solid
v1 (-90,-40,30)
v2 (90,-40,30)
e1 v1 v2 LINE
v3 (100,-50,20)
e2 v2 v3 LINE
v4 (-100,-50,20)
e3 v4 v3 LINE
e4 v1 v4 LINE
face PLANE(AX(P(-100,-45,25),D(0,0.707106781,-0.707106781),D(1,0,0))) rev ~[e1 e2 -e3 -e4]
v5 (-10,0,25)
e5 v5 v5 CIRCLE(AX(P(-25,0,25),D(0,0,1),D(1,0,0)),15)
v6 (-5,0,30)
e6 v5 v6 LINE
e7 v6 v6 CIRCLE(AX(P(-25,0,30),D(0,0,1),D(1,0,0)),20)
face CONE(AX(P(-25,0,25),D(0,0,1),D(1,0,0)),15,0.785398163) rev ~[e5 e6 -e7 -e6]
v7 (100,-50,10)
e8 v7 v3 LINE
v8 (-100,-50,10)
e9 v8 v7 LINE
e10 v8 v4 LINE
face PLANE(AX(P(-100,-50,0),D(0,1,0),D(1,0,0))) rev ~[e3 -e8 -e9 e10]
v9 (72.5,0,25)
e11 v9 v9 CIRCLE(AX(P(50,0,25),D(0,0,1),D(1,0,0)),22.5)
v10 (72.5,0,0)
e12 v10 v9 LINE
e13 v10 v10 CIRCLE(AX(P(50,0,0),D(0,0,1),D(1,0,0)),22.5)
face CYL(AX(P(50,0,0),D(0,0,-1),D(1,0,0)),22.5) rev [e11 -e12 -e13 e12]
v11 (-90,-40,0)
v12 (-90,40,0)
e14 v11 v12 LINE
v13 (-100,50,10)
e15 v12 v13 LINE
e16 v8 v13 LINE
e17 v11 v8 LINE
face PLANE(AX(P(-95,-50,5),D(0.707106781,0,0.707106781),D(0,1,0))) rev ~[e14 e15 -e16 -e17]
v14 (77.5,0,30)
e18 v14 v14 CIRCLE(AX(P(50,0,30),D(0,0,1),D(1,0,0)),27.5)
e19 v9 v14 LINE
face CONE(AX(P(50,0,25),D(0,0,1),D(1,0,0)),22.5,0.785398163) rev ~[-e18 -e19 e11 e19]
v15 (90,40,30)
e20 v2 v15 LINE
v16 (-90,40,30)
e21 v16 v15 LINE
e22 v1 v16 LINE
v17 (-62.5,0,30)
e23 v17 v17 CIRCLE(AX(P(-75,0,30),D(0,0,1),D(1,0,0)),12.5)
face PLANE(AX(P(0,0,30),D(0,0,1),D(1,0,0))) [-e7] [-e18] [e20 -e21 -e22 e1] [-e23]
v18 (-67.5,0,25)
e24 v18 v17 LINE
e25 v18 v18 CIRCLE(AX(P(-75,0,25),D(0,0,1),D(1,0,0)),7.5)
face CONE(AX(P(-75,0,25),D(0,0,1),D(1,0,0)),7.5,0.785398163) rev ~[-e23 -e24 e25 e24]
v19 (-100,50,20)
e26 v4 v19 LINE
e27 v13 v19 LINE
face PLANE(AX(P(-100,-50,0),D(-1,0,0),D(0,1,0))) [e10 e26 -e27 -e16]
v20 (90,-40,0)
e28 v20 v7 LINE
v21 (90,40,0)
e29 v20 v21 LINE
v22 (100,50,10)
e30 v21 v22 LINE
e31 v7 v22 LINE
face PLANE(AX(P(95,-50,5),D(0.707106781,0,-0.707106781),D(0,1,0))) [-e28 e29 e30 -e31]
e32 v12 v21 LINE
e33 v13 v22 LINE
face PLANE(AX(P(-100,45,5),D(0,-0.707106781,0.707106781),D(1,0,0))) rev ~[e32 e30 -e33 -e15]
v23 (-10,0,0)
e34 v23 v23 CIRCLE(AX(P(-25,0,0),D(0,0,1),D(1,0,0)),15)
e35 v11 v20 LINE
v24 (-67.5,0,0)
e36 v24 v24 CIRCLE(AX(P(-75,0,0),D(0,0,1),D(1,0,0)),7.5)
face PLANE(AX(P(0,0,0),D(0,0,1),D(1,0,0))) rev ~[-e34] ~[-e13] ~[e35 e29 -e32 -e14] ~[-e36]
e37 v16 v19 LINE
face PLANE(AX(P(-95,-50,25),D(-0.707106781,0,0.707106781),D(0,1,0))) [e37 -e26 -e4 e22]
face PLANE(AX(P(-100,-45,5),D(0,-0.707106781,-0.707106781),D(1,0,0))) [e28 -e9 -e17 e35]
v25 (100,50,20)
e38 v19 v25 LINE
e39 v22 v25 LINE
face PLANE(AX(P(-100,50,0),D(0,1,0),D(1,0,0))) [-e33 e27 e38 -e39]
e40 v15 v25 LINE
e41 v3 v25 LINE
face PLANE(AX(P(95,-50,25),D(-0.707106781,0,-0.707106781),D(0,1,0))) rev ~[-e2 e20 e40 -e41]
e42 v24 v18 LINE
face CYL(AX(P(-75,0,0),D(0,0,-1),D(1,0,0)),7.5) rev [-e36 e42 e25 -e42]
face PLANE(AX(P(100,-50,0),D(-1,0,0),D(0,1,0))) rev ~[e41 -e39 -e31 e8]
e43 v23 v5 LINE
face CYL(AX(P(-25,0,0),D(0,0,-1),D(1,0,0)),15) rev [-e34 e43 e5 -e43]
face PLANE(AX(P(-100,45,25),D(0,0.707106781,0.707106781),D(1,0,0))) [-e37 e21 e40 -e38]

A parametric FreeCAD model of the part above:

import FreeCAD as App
import Part
import Sketcher


def edges_at(feature, points):
    """Names of the edges that pass closest to the given points."""
    edges = feature.Shape.Edges
    near = lambda p: min(range(len(edges)), key=lambda i: edges[i].distToShape(Part.Vertex(*p))[0])
    return sorted({f"Edge{near(p) + 1}" for p in points})


def add_polygon(sketch, points):
    """Adds a closed chain of lines whose ends are joined by coincident constraints."""
    first, n = sketch.GeometryCount, len(points)
    for a, b in zip(points, points[1:] + points[:1]):
        sketch.addGeometry(Part.LineSegment(App.Vector(*a, 0), App.Vector(*b, 0)), False)
    for i in range(n):
        sketch.addConstraint(Sketcher.Constraint("Coincident", first + i, 2, first + (i + 1) % n, 1))

doc = App.newDocument("Part")
body = doc.addObject("PartDesign::Body", "Body")

sketch1 = body.newObject("Sketcher::SketchObject", "Sketch")
sketch1.AttachmentSupport = (doc.getObject("XY_Plane"), [""])
sketch1.MapMode = "FlatFace"
add_polygon(sketch1, [(-100, 50), (-100, -50), (100, -50), (100, 50)])
sketch1.addGeometry(Part.Circle(App.Vector(-75, 0, 0), App.Vector(0, 0, 1), 8), False)
sketch1.addGeometry(Part.Circle(App.Vector(-25, 0, 0), App.Vector(0, 0, 1), 15), False)
sketch1.addGeometry(Part.Circle(App.Vector(50, 0, 0), App.Vector(0, 0, 1), 22), False)
sketch1.addConstraint([
    Sketcher.Constraint("Vertical", 0),
    Sketcher.Constraint("Horizontal", 1),
    Sketcher.Constraint("Vertical", 2),
    Sketcher.Constraint("Horizontal", 3),
    Sketcher.Constraint("Symmetric", 0, 2, 2, 2, -1, 1),
    Sketcher.Constraint("PointOnObject", 4, 3, -1),
    Sketcher.Constraint("PointOnObject", 5, 3, -1),
    Sketcher.Constraint("PointOnObject", 6, 3, -1),
    Sketcher.Constraint("Diameter", 4, 15.0),
    Sketcher.Constraint("Diameter", 5, 30.0),
    Sketcher.Constraint("Diameter", 6, 45.0),
    Sketcher.Constraint("DistanceX", 1, 1, 1, 2, 200.0),
    Sketcher.Constraint("DistanceY", 0, 2, 0, 1, 100.0),
    Sketcher.Constraint("DistanceX", 4, 3, -1, 1, 75.0),
    Sketcher.Constraint("DistanceX", 5, 3, -1, 1, 25.0),
    Sketcher.Constraint("DistanceX", -1, 1, 6, 3, 50.0),
])
pad1 = body.newObject("PartDesign::Pad", "Pad")
pad1.Profile = sketch1
pad1.Length = 30
doc.recompute()

chamfer = body.newObject("PartDesign::Chamfer", "Chamfer")
chamfer.Base = (pad1, edges_at(pad1, [(-82.5, 0, 30), (-40, 0, 30), (27.5, 0, 30)]))
chamfer.ChamferType = "Two distances"
chamfer.Size = 5
chamfer.Size2 = 5
doc.recompute()

chamfer2 = body.newObject("PartDesign::Chamfer", "Chamfer001")
chamfer2.Base = (chamfer, edges_at(chamfer, [
    (-100, 0, 30),
    (0, 50, 30),
    (100, 0, 30),
    (0, -50, 30),
    (0, -50, 0),
    (-100, 0, 0),
    (0, 50, 0),
    (100, 0, 0),
]))
chamfer2.ChamferType = "Two distances"
chamfer2.Size = 10
chamfer2.Size2 = 10

doc.recompute()
